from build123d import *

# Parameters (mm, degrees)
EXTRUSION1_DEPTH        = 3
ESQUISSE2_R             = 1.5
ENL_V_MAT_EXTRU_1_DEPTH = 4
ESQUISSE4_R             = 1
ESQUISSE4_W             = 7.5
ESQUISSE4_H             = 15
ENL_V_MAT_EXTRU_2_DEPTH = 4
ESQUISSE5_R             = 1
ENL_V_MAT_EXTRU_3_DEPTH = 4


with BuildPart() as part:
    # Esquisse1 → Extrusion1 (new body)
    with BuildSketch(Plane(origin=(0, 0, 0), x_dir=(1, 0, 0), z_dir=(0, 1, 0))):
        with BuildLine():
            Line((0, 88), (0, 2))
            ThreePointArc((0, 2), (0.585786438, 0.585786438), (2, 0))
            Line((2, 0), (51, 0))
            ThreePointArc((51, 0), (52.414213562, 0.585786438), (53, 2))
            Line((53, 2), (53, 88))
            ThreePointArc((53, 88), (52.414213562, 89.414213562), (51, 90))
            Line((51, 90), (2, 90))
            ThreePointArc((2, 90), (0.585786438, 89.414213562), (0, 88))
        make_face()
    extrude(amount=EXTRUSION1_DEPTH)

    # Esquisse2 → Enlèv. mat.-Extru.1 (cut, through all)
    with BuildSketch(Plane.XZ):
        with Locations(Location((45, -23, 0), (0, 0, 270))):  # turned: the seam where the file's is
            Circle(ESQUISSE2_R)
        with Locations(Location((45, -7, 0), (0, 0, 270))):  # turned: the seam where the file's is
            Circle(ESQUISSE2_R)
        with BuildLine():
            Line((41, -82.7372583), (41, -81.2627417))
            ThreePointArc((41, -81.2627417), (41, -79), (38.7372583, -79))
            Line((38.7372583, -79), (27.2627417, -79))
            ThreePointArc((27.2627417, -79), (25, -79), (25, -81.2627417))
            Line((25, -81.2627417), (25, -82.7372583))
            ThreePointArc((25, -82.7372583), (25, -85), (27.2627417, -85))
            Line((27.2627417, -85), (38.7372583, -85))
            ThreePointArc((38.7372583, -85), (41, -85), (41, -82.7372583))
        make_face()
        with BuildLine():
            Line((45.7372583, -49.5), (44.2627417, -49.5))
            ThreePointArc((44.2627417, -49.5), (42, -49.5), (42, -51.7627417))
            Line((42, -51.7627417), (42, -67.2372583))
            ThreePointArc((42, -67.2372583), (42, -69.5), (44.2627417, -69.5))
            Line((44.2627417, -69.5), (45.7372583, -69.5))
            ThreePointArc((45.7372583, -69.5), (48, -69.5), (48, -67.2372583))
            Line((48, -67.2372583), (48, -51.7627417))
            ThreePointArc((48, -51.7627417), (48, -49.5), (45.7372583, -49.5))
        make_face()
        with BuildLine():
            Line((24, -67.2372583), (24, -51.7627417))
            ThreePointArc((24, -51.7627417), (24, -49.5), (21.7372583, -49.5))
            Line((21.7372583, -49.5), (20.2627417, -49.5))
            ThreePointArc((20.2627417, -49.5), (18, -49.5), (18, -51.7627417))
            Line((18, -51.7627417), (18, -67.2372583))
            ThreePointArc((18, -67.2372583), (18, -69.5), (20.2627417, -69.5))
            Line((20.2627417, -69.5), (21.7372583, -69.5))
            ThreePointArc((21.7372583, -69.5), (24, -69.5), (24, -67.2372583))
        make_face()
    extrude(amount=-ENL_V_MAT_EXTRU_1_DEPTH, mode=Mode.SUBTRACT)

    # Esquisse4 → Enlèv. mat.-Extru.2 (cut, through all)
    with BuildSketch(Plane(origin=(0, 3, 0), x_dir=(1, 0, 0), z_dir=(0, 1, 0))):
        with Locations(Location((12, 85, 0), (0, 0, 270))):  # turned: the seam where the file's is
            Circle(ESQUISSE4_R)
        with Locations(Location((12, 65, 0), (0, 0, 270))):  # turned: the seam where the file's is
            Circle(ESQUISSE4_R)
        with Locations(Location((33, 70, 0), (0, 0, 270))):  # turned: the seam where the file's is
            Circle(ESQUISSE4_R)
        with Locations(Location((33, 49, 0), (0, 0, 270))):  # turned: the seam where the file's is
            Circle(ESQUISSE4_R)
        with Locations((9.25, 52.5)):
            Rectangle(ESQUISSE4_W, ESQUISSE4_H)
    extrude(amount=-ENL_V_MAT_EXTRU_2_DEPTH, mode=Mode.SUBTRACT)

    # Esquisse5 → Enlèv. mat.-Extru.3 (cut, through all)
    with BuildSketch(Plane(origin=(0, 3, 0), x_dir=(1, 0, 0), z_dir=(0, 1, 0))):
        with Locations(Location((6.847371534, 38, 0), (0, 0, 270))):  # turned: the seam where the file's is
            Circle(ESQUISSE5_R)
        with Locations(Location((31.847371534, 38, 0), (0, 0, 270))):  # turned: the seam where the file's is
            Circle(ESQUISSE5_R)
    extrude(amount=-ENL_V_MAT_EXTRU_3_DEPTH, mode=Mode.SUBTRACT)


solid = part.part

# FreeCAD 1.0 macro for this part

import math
import FreeCAD as App
import Part
import Sketcher

V = App.Vector


def add_polygon(sketch, points):
    """Adds a closed chain of lines whose ends are joined by coincident constraints."""
    first, n = sketch.GeometryCount, len(points)
    for a, b in zip(points, points[1:] + points[:1]):
        sketch.addGeometry(Part.LineSegment(App.Vector(*a, 0), App.Vector(*b, 0)), False)
    for i in range(n):
        sketch.addConstraint(Sketcher.Constraint("Coincident", first + i, 2, first + (i + 1) % n, 1))

doc = App.newDocument("Part")
body = doc.addObject("PartDesign::Body", "Body")

# Sketch on XZ plane
sketch1 = body.newObject("Sketcher::SketchObject", "Sketch")
sketch1.AttachmentSupport = (doc.getObject("XZ_Plane"), [""])
sketch1.MapMode = "FlatFace"
sketch1.addGeometry([
    Part.LineSegment(V(0, -88, 0), V(0, -2, 0)),  # 0
    Part.ArcOfCircle(Part.Circle(V(2, -2, 0), V(0, 0, 1), 2), math.radians(90), math.radians(180)),  # 1
    Part.LineSegment(V(2, 0, 0), V(51, 0, 0)),  # 2
    Part.ArcOfCircle(Part.Circle(V(51, -2, 0), V(0, 0, 1), 2), math.radians(0), math.radians(90)),  # 3
    Part.LineSegment(V(53, -2, 0), V(53, -88, 0)),  # 4
    Part.ArcOfCircle(Part.Circle(V(51, -88, 0), V(0, 0, 1), 2), math.radians(-90), math.radians(0)),  # 5
    Part.LineSegment(V(51, -90, 0), V(2, -90, 0)),  # 6
    Part.ArcOfCircle(Part.Circle(V(2, -88, 0), V(0, 0, 1), 2), math.radians(-180), math.radians(-90)),  # 7
], False)
sketch1.addConstraint([
    Sketcher.Constraint("Tangent", 0, 2, 1, 2),
    Sketcher.Constraint("Tangent", 1, 1, 2, 1),
    Sketcher.Constraint("Tangent", 2, 2, 3, 2),
    Sketcher.Constraint("Tangent", 3, 1, 4, 1),
    Sketcher.Constraint("Tangent", 4, 2, 5, 2),
    Sketcher.Constraint("Tangent", 5, 1, 6, 1),
    Sketcher.Constraint("Tangent", 6, 2, 7, 2),
    Sketcher.Constraint("Tangent", 7, 1, 0, 1),
    Sketcher.Constraint("Vertical", 0),
    Sketcher.Constraint("Horizontal", 2),
    Sketcher.Constraint("Vertical", 4),
    Sketcher.Constraint("Horizontal", 6),
    Sketcher.Constraint("Equal", 1, 3),
    Sketcher.Constraint("Equal", 3, 5),
    Sketcher.Constraint("Equal", 5, 7),
    Sketcher.Constraint("PointOnObject", 0, 2, -2),
    Sketcher.Constraint("PointOnObject", 1, 1, -1),
    Sketcher.Constraint("Radius", 1, 2.0),
    Sketcher.Constraint("DistanceX", 2, 1, 2, 2, 49.0),
    Sketcher.Constraint("DistanceY", 0, 1, 0, 2, 86.0),
])
pad1 = body.newObject("PartDesign::Pad", "Pad")
pad1.Profile = sketch1
pad1.Length = 3
pad1.Reversed = True

# Sketch on XZ plane
sketch2 = body.newObject("Sketcher::SketchObject", "Sketch001")
sketch2.AttachmentSupport = (doc.getObject("XZ_Plane"), [""])
sketch2.MapMode = "FlatFace"
sketch2.addGeometry([
    Part.Circle(V(45, -23, 0), V(0, 0, 1), 1.5),  # 0
    Part.Circle(V(45, -7, 0), V(0, 0, 1), 1.5),  # 1
    Part.LineSegment(V(41, -82.7, 0), V(41, -81.3, 0)),  # 2
    Part.ArcOfCircle(Part.Circle(V(39.9, -80.1, 0), V(0, 0, 1), 1.6), math.radians(-45), math.radians(135)),  # 3
    Part.LineSegment(V(38.7, -79, 0), V(27.3, -79, 0)),  # 4
    Part.ArcOfCircle(Part.Circle(V(26.1, -80.1, 0), V(0, 0, 1), 1.6), math.radians(45), math.radians(225)),  # 5
    Part.LineSegment(V(25, -81.3, 0), V(25, -82.7, 0)),  # 6
    Part.ArcOfCircle(Part.Circle(V(26.1, -83.9, 0), V(0, 0, 1), 1.6), math.radians(135), math.radians(315)),  # 7
    Part.LineSegment(V(27.3, -85, 0), V(38.7, -85, 0)),  # 8
    Part.ArcOfCircle(Part.Circle(V(39.9, -83.9, 0), V(0, 0, 1), 1.6), math.radians(-135), math.radians(45)),  # 9
    Part.LineSegment(V(45.7, -49.5, 0), V(44.3, -49.5, 0)),  # 10
    Part.ArcOfCircle(Part.Circle(V(43.1, -50.6, 0), V(0, 0, 1), 1.6), math.radians(45), math.radians(225)),  # 11
    Part.LineSegment(V(42, -51.8, 0), V(42, -67.2, 0)),  # 12
    Part.ArcOfCircle(Part.Circle(V(43.1, -68.4, 0), V(0, 0, 1), 1.6), math.radians(135), math.radians(315)),  # 13
    Part.LineSegment(V(44.3, -69.5, 0), V(45.7, -69.5, 0)),  # 14
    Part.ArcOfCircle(Part.Circle(V(46.9, -68.4, 0), V(0, 0, 1), 1.6), math.radians(-135), math.radians(45)),  # 15
    Part.LineSegment(V(48, -67.2, 0), V(48, -51.8, 0)),  # 16
    Part.ArcOfCircle(Part.Circle(V(46.9, -50.6, 0), V(0, 0, 1), 1.6), math.radians(-45), math.radians(135)),  # 17
    Part.LineSegment(V(24, -67.2, 0), V(24, -51.8, 0)),  # 18
    Part.ArcOfCircle(Part.Circle(V(22.9, -50.6, 0), V(0, 0, 1), 1.6), math.radians(-45), math.radians(135)),  # 19
    Part.LineSegment(V(21.7, -49.5, 0), V(20.3, -49.5, 0)),  # 20
    Part.ArcOfCircle(Part.Circle(V(19.1, -50.6, 0), V(0, 0, 1), 1.6), math.radians(45), math.radians(225)),  # 21
    Part.LineSegment(V(18, -51.8, 0), V(18, -67.2, 0)),  # 22
    Part.ArcOfCircle(Part.Circle(V(19.1, -68.4, 0), V(0, 0, 1), 1.6), math.radians(135), math.radians(315)),  # 23
    Part.LineSegment(V(20.3, -69.5, 0), V(21.7, -69.5, 0)),  # 24
    Part.ArcOfCircle(Part.Circle(V(22.9, -68.4, 0), V(0, 0, 1), 1.6), math.radians(-135), math.radians(45)),  # 25
], False)
sketch2.addConstraint([
    Sketcher.Constraint("Coincident", 2, 2, 3, 1),
    Sketcher.Constraint("Coincident", 3, 2, 4, 1),
    Sketcher.Constraint("Coincident", 4, 2, 5, 1),
    Sketcher.Constraint("Coincident", 5, 2, 6, 1),
    Sketcher.Constraint("Coincident", 6, 2, 7, 1),
    Sketcher.Constraint("Coincident", 7, 2, 8, 1),
    Sketcher.Constraint("Coincident", 8, 2, 9, 1),
    Sketcher.Constraint("Coincident", 9, 2, 2, 1),
    Sketcher.Constraint("Coincident", 10, 2, 11, 1),
    Sketcher.Constraint("Coincident", 11, 2, 12, 1),
    Sketcher.Constraint("Coincident", 12, 2, 13, 1),
    Sketcher.Constraint("Coincident", 13, 2, 14, 1),
    Sketcher.Constraint("Coincident", 14, 2, 15, 1),
    Sketcher.Constraint("Coincident", 15, 2, 16, 1),
    Sketcher.Constraint("Coincident", 16, 2, 17, 1),
    Sketcher.Constraint("Coincident", 17, 2, 10, 1),
    Sketcher.Constraint("Coincident", 18, 2, 19, 1),
    Sketcher.Constraint("Coincident", 19, 2, 20, 1),
    Sketcher.Constraint("Coincident", 20, 2, 21, 1),
    Sketcher.Constraint("Coincident", 21, 2, 22, 1),
    Sketcher.Constraint("Coincident", 22, 2, 23, 1),
    Sketcher.Constraint("Coincident", 23, 2, 24, 1),
    Sketcher.Constraint("Coincident", 24, 2, 25, 1),
    Sketcher.Constraint("Coincident", 25, 2, 18, 1),
    Sketcher.Constraint("Vertical", 2),
    Sketcher.Constraint("Horizontal", 4),
    Sketcher.Constraint("Vertical", 6),
    Sketcher.Constraint("Horizontal", 8),
    Sketcher.Constraint("Horizontal", 10),
    Sketcher.Constraint("Vertical", 12),
    Sketcher.Constraint("Horizontal", 14),
    Sketcher.Constraint("Vertical", 16),
    Sketcher.Constraint("Vertical", 18),
    Sketcher.Constraint("Horizontal", 20),
    Sketcher.Constraint("Vertical", 22),
    Sketcher.Constraint("Horizontal", 24),
    Sketcher.Constraint("Equal", 0, 1),
    Sketcher.Constraint("Equal", 3, 5),
    Sketcher.Constraint("Equal", 5, 7),
    Sketcher.Constraint("Equal", 7, 9),
    Sketcher.Constraint("Equal", 9, 11),
    Sketcher.Constraint("Equal", 11, 13),
    Sketcher.Constraint("Equal", 13, 15),
    Sketcher.Constraint("Equal", 15, 17),
    Sketcher.Constraint("Equal", 17, 19),
    Sketcher.Constraint("Equal", 19, 21),
    Sketcher.Constraint("Equal", 21, 23),
    Sketcher.Constraint("Equal", 23, 25),
    Sketcher.Constraint("Horizontal", 3, 3, 5, 3),
    Sketcher.Constraint("Horizontal", 7, 3, 9, 3),
    Sketcher.Constraint("Horizontal", 13, 3, 15, 3),
    Sketcher.Constraint("Horizontal", 11, 3, 17, 3),
    Sketcher.Constraint("Horizontal", 17, 3, 19, 3),
    Sketcher.Constraint("Horizontal", 19, 3, 21, 3),
    Sketcher.Constraint("Horizontal", 15, 3, 23, 3),
    Sketcher.Constraint("Horizontal", 23, 3, 25, 3),
    Sketcher.Constraint("Horizontal", 2, 2, 5, 2),
    Sketcher.Constraint("Horizontal", 6, 2, 9, 2),
    Sketcher.Constraint("Horizontal", 12, 2, 15, 2),
    Sketcher.Constraint("Horizontal", 11, 2, 16, 2),
    Sketcher.Constraint("Horizontal", 16, 2, 18, 2),
    Sketcher.Constraint("Horizontal", 17, 2, 19, 2),
    Sketcher.Constraint("Horizontal", 18, 2, 21, 2),
    Sketcher.Constraint("Horizontal", 15, 2, 22, 2),
    Sketcher.Constraint("Horizontal", 14, 2, 23, 2),
    Sketcher.Constraint("Horizontal", 22, 2, 25, 2),
    Sketcher.Constraint("Vertical", 0, 3, 1, 3),
    Sketcher.Constraint("Vertical", 5, 3, 7, 3),
    Sketcher.Constraint("Vertical", 11, 3, 13, 3),
    Sketcher.Constraint("Vertical", 4, 2, 7, 2),
    Sketcher.Constraint("Vertical", 10, 2, 13, 2),
    Sketcher.Constraint("Equal", 14, 20),
    Sketcher.Constraint("Equal", 24, 2),
    Sketcher.Constraint("Diameter", 0, 3.0),
    Sketcher.Constraint("Radius", 3, 1.6),
    Sketcher.Constraint("DistanceX", -1, 1, 0, 3, 45.0),
    Sketcher.Constraint("DistanceY", 0, 3, -1, 1, 23.0),
    Sketcher.Constraint("DistanceY", 1, 3, -1, 1, 7.0),
    Sketcher.Constraint("DistanceX", -1, 1, 2, 2, 41.0),
    Sketcher.Constraint("DistanceY", 3, 2, -1, 1, 79.0),
    Sketcher.Constraint("DistanceX", -1, 1, 5, 2, 25.0),
    Sketcher.Constraint("DistanceY", 7, 2, -1, 1, 85.0),
    Sketcher.Constraint("DistanceX", -1, 1, 11, 2, 42.0),
    Sketcher.Constraint("DistanceX", -1, 1, 15, 2, 48.0),
    Sketcher.Constraint("DistanceX", -1, 1, 18, 2, 24.0),
    Sketcher.Constraint("DistanceX", 5, 3, 11, 3, 17.0),
    Sketcher.Constraint("DistanceX", 3, 2, 14, 2, 7.0),
    Sketcher.Constraint("DistanceY", 10, 2, -1, 1, 49.5),
    Sketcher.Constraint("DistanceY", 13, 2, -1, 1, 69.5),
    Sketcher.Constraint("DistanceX", -1, 1, 3, 3, 39.868629),
])
pocket1 = body.newObject("PartDesign::Pocket", "Pocket")
pocket1.Profile = sketch2
pocket1.Type = "ThroughAll"

# Sketch on XZ plane
sketch3 = body.newObject("Sketcher::SketchObject", "Sketch002")
sketch3.AttachmentSupport = (doc.getObject("XZ_Plane"), [""])
sketch3.MapMode = "FlatFace"
sketch3.AttachmentOffset = App.Placement(V(0, 0, -3), App.Rotation())
sketch3.addGeometry(Part.Circle(V(12, -85, 0), V(0, 0, 1), 1), False)  # 0
sketch3.addGeometry(Part.Circle(V(12, -65, 0), V(0, 0, 1), 1), False)  # 1
sketch3.addGeometry(Part.Circle(V(33, -70, 0), V(0, 0, 1), 1), False)  # 2
sketch3.addGeometry(Part.Circle(V(33, -49, 0), V(0, 0, 1), 1), False)  # 3
add_polygon(sketch3, [(5.5, -60), (5.5, -45), (13, -45), (13, -60)])  # lines 4-7
sketch3.addConstraint([
    Sketcher.Constraint("Vertical", 4),
    Sketcher.Constraint("Horizontal", 5),
    Sketcher.Constraint("Vertical", 6),
    Sketcher.Constraint("Horizontal", 7),
    Sketcher.Constraint("Equal", 0, 1),
    Sketcher.Constraint("Equal", 1, 2),
    Sketcher.Constraint("Equal", 2, 3),
    Sketcher.Constraint("Vertical", 0, 3, 1, 3),
    Sketcher.Constraint("Vertical", 2, 3, 3, 3),
    Sketcher.Constraint("Diameter", 0, 2.0),
    Sketcher.Constraint("DistanceY", 4, 1, 4, 2, 15.0),
    Sketcher.Constraint("DistanceX", 5, 1, 5, 2, 7.5),
    Sketcher.Constraint("DistanceX", -1, 1, 0, 3, 12.0),
    Sketcher.Constraint("DistanceY", 0, 3, -1, 1, 85.0),
    Sketcher.Constraint("DistanceY", 1, 3, -1, 1, 65.0),
    Sketcher.Constraint("DistanceX", -1, 1, 2, 3, 33.0),
    Sketcher.Constraint("DistanceY", 2, 3, -1, 1, 70.0),
    Sketcher.Constraint("DistanceY", 3, 3, -1, 1, 49.0),
    Sketcher.Constraint("DistanceY", 4, 2, -1, 1, 45.0),
    Sketcher.Constraint("DistanceX", -1, 1, 5, 2, 13.0),
])
pocket2 = body.newObject("PartDesign::Pocket", "Pocket001")
pocket2.Profile = sketch3
pocket2.Type = "ThroughAll"
pocket2.Reversed = True

# Sketch on XZ plane
sketch4 = body.newObject("Sketcher::SketchObject", "Sketch003")
sketch4.AttachmentSupport = (doc.getObject("XZ_Plane"), [""])
sketch4.MapMode = "FlatFace"
sketch4.AttachmentOffset = App.Placement(V(0, 0, -3), App.Rotation())
sketch4.addGeometry([
    Part.Circle(V(6.8, -38, 0), V(0, 0, 1), 1),
    Part.Circle(V(31.8, -38, 0), V(0, 0, 1), 1),
], False)
sketch4.addConstraint([
    Sketcher.Constraint("Equal", 0, 1),
    Sketcher.Constraint("Horizontal", 0, 3, 1, 3),
    Sketcher.Constraint("Diameter", 0, 2.0),
    Sketcher.Constraint("DistanceY", 0, 3, -1, 1, 38.0),
    Sketcher.Constraint("DistanceX", 0, 3, 1, 3, 25.0),
    Sketcher.Constraint("DistanceX", -1, 1, 0, 3, 6.847372),
])
pocket3 = body.newObject("PartDesign::Pocket", "Pocket002")
pocket3.Profile = sketch4
pocket3.Type = "ThroughAll"
pocket3.Reversed = True

doc.recompute()
